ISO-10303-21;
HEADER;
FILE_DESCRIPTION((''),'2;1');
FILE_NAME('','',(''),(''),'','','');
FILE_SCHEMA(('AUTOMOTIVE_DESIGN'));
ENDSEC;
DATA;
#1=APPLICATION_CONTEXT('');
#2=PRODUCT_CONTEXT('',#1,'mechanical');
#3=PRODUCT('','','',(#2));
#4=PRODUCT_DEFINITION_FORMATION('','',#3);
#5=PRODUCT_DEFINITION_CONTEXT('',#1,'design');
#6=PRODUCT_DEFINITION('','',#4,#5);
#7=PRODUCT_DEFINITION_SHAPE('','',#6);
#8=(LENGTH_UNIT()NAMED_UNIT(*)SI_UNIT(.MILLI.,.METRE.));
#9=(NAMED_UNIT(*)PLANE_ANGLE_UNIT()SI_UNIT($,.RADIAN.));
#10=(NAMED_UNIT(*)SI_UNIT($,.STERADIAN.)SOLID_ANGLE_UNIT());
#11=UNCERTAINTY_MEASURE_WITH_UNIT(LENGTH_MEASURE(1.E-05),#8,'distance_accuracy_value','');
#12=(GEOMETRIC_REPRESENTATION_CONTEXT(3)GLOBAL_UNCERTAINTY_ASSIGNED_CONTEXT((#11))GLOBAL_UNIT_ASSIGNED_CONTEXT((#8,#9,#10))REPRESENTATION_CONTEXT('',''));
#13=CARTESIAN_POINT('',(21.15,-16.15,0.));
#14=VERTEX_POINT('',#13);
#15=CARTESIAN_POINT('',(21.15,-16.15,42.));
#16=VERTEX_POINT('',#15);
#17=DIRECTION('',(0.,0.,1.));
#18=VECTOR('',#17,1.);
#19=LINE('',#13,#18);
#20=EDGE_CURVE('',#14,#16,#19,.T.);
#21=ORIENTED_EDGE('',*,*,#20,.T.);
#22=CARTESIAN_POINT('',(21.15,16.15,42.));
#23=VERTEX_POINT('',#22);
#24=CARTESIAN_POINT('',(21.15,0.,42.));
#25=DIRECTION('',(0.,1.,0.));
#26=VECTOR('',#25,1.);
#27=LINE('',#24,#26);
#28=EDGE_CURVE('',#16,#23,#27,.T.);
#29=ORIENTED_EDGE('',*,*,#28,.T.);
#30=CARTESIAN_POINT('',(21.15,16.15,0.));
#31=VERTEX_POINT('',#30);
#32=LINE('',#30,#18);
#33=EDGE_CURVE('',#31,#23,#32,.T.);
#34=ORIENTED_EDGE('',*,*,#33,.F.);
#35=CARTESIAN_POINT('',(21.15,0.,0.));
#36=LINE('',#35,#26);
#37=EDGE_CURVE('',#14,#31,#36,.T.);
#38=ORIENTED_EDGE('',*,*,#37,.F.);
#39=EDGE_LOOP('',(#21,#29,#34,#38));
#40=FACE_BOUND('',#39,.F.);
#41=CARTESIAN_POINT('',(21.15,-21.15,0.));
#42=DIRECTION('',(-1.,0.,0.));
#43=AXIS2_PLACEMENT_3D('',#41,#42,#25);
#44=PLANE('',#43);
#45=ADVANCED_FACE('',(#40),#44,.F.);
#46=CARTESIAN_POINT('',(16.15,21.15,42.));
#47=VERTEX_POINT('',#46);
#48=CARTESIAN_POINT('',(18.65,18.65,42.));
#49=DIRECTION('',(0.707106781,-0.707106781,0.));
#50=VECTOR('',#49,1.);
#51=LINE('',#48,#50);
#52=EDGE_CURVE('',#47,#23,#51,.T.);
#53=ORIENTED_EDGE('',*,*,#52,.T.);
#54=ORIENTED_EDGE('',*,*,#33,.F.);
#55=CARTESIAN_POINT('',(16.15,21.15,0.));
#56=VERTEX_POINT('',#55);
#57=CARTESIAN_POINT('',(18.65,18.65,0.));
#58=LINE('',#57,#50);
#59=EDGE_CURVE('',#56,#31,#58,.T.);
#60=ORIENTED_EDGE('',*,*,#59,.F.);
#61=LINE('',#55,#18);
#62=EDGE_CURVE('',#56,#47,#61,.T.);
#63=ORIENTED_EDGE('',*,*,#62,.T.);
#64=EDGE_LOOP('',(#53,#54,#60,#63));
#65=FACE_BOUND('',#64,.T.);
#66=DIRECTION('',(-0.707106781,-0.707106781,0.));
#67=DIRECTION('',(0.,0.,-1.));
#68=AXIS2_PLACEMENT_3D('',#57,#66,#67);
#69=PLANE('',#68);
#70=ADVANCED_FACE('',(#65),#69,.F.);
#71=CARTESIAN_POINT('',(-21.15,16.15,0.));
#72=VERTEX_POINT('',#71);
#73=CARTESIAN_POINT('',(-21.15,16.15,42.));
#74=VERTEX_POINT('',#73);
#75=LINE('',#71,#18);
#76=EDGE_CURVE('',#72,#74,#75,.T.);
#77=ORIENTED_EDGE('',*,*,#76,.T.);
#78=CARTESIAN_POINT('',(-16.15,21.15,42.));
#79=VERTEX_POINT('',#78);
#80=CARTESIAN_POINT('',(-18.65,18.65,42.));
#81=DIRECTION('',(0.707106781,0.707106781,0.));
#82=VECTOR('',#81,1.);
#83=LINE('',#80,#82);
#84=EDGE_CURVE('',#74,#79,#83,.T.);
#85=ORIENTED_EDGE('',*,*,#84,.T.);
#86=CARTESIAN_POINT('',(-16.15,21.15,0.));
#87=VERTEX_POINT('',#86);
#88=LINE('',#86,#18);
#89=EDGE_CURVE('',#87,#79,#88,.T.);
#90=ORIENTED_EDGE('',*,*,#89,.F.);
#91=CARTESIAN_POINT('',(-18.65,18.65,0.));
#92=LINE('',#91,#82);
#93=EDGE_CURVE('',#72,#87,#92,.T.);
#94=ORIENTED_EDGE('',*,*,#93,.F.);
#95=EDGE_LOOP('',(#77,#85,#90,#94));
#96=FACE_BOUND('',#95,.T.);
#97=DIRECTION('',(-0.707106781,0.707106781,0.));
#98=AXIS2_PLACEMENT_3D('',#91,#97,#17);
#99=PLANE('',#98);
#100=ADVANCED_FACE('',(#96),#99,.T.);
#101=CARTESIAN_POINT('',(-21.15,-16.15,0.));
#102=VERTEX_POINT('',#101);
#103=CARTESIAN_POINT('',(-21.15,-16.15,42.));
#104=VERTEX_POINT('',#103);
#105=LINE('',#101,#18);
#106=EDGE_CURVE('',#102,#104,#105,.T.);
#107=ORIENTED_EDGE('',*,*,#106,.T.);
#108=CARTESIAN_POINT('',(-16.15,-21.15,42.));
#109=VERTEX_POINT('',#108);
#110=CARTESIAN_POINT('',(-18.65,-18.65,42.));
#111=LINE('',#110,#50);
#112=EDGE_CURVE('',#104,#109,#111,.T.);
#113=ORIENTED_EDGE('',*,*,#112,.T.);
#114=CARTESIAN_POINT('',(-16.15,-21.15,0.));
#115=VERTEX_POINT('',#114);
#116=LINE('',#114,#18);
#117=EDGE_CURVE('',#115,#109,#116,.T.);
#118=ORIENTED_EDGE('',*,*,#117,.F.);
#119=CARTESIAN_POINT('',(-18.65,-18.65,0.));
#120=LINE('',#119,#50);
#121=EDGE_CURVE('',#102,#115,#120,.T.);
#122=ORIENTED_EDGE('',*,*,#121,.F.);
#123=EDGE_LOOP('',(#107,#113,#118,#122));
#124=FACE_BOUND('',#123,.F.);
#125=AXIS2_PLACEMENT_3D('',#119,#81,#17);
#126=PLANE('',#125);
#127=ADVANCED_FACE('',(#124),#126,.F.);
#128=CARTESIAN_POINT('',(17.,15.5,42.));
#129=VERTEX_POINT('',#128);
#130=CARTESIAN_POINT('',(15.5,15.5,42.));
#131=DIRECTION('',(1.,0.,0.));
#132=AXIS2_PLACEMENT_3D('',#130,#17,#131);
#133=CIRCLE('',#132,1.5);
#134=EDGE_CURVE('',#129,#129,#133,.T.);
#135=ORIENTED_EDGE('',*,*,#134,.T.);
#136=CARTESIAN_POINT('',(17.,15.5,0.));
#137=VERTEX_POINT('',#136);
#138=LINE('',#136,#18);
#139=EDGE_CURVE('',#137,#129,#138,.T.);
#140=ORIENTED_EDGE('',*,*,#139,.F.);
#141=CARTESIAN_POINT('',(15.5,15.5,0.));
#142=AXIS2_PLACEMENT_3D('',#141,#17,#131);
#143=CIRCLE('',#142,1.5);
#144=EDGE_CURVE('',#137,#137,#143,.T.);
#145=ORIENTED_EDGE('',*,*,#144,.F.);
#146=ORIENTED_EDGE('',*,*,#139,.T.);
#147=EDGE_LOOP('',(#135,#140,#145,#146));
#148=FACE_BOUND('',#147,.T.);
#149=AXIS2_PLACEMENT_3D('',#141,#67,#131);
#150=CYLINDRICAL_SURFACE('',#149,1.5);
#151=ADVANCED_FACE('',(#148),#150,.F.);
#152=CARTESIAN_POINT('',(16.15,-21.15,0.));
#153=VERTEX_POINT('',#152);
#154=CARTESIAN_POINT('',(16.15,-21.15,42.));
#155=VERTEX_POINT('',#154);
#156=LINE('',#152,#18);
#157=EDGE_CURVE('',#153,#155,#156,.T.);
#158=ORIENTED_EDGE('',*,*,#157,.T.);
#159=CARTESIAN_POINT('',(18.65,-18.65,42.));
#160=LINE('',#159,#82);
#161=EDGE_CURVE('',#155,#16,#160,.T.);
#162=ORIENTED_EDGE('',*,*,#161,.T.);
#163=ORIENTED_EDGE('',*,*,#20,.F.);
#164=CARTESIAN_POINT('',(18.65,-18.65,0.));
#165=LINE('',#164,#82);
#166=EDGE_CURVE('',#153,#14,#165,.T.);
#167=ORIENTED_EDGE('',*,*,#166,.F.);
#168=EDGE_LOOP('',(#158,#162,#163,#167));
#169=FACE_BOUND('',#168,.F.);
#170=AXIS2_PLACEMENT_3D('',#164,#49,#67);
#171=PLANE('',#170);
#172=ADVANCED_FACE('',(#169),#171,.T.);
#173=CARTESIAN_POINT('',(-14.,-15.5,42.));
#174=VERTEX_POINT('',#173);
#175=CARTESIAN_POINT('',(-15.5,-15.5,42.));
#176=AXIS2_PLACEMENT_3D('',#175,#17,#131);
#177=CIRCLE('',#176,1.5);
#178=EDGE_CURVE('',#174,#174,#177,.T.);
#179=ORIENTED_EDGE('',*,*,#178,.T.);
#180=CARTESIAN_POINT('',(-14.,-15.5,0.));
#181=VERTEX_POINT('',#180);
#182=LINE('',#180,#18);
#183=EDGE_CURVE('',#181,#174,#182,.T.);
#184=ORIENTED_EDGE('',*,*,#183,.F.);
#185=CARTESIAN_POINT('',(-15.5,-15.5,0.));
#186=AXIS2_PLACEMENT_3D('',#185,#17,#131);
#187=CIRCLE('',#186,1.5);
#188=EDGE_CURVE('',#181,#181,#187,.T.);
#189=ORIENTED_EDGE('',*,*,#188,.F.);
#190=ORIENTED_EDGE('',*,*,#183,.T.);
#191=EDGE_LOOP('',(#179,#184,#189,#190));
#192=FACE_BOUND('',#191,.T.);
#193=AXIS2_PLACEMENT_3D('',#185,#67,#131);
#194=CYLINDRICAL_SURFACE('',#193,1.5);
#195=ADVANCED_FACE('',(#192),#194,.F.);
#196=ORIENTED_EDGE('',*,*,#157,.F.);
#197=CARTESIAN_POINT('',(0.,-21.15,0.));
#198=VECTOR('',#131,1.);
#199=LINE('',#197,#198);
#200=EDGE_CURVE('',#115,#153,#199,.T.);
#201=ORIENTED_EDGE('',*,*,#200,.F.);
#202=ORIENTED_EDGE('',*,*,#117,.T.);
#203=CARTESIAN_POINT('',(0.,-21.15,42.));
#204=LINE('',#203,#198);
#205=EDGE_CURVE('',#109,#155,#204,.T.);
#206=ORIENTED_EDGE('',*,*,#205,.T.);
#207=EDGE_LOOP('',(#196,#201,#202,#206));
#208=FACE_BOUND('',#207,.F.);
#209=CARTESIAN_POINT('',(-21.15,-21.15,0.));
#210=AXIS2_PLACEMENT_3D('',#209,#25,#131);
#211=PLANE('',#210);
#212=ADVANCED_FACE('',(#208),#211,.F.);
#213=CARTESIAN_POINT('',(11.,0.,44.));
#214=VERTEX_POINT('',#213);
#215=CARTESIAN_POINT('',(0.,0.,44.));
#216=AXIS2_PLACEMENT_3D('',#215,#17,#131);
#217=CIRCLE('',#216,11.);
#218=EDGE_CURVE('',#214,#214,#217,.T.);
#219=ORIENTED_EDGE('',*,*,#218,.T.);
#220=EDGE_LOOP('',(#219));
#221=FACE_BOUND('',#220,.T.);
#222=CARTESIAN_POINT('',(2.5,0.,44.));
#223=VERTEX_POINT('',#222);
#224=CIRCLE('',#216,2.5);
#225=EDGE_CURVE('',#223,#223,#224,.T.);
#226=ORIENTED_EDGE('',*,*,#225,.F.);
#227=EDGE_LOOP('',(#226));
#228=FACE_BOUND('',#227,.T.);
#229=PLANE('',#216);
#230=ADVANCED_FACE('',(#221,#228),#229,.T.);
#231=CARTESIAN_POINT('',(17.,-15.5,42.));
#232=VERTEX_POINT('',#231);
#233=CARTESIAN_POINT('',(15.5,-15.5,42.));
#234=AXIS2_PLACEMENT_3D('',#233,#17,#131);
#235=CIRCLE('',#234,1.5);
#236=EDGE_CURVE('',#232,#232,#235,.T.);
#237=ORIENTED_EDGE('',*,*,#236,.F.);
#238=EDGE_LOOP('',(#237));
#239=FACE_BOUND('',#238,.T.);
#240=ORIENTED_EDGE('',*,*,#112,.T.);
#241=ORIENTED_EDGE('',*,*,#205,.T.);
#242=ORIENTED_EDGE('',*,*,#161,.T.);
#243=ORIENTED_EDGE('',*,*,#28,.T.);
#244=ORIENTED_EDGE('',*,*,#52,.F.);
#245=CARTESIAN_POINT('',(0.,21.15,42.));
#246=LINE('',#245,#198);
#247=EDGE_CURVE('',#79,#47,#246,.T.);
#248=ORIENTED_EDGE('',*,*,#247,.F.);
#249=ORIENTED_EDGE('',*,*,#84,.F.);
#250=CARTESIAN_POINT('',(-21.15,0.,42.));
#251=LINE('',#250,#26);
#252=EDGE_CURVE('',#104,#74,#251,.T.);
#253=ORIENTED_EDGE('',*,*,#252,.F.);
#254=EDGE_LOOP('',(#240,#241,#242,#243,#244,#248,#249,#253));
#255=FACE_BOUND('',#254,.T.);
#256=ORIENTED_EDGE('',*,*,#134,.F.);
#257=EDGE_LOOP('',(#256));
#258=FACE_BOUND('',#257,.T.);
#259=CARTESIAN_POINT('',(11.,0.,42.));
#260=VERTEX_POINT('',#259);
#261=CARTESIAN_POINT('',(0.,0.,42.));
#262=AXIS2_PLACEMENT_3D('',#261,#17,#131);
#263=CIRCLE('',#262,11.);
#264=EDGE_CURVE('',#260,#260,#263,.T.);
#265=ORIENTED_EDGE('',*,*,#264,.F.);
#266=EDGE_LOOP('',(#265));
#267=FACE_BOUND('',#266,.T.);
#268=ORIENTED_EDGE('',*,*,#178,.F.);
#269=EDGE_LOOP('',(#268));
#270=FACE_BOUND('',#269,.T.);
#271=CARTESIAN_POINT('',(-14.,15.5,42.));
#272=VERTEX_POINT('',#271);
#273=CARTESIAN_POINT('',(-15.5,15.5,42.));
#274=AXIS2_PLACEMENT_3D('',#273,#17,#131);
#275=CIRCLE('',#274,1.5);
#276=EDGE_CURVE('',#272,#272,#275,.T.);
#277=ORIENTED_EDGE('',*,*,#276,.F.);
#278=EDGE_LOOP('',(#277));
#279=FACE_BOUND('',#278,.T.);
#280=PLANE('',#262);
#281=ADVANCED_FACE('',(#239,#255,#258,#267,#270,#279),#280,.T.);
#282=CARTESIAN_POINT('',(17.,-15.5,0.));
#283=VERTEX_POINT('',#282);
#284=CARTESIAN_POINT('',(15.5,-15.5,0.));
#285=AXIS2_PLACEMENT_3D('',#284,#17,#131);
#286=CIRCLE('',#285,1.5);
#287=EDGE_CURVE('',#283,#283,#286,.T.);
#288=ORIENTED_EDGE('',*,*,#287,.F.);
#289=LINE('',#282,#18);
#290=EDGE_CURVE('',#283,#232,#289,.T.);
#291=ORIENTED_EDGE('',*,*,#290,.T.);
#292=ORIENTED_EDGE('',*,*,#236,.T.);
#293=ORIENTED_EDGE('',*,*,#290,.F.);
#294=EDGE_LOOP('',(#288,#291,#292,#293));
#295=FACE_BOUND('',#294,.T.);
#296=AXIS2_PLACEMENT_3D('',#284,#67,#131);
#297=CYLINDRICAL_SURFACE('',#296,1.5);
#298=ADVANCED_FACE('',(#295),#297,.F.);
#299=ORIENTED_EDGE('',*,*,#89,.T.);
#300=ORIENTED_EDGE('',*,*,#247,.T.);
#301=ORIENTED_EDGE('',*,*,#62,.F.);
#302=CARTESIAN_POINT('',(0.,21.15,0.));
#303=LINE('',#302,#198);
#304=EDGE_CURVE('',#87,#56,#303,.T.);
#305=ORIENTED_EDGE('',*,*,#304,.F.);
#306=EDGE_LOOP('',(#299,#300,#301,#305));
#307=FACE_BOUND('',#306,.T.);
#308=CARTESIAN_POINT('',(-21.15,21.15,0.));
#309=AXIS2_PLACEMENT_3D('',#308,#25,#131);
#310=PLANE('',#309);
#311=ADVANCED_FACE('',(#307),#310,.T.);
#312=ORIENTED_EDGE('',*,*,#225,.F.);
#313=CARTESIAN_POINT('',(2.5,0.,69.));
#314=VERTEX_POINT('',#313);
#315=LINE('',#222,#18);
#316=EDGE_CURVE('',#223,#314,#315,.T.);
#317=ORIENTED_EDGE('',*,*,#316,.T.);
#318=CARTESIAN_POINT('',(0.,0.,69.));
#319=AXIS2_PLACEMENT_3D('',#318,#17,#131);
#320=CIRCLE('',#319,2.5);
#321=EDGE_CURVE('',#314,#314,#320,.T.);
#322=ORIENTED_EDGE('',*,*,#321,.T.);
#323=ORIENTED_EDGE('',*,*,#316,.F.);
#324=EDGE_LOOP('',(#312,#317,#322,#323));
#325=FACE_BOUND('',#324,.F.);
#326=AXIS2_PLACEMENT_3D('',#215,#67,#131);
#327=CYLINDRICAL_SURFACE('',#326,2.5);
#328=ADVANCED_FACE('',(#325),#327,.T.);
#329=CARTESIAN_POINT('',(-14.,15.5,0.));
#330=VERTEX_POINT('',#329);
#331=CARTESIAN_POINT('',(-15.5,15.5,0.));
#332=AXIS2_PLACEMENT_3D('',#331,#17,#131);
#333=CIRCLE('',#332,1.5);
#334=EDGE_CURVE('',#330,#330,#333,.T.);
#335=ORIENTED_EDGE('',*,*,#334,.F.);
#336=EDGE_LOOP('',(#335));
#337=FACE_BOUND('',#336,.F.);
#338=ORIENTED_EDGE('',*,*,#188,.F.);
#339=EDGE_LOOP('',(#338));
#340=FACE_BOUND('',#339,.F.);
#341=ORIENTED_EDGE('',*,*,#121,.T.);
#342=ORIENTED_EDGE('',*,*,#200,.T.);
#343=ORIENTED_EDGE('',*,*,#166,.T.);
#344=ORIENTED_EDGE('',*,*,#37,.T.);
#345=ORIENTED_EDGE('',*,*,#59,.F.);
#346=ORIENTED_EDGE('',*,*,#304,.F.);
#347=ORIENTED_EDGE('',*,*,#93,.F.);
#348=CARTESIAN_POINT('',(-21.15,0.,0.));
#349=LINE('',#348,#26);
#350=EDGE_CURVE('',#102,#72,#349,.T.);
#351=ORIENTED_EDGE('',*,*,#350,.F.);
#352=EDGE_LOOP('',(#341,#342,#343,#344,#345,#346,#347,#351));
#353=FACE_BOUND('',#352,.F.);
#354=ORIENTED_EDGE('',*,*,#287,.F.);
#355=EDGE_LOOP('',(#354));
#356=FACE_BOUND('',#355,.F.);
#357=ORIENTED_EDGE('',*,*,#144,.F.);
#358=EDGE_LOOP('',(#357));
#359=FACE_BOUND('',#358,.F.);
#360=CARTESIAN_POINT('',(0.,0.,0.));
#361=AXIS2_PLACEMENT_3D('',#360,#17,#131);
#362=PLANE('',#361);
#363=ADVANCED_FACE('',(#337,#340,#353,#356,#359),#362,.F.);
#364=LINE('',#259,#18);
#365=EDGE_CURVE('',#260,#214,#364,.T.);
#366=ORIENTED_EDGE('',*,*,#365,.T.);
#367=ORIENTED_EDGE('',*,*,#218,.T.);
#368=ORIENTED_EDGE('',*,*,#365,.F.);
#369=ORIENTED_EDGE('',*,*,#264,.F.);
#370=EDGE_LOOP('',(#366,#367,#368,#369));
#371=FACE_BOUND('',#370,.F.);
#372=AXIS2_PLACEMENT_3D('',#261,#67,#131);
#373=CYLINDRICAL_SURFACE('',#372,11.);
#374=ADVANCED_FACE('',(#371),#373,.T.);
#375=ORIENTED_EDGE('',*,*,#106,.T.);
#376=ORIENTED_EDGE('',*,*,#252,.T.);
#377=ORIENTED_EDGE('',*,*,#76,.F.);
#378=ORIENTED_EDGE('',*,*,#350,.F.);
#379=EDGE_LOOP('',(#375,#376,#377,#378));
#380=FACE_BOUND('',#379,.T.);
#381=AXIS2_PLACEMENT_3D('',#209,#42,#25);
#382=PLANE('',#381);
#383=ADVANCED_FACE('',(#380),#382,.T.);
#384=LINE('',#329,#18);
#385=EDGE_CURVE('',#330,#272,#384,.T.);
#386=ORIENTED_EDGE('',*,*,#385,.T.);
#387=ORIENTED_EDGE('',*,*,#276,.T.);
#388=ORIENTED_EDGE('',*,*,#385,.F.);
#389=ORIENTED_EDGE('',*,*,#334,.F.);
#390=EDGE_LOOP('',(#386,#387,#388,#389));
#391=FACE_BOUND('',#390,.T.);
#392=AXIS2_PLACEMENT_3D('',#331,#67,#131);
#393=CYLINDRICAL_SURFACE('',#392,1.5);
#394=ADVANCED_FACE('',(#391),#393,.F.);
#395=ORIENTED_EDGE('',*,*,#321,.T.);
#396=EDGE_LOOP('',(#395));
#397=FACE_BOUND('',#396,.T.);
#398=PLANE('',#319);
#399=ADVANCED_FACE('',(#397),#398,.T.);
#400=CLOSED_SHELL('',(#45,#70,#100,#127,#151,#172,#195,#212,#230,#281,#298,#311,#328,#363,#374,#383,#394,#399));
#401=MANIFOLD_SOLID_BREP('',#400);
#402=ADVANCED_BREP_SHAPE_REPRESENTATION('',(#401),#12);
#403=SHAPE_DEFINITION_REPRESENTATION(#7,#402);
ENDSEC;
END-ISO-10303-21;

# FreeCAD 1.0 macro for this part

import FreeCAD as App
import Part
import Sketcher


def edges_at(feature, points):
    """Names of the edges that pass closest to the given points."""
    edges = feature.Shape.Edges
    near = lambda p: min(range(len(edges)), key=lambda i: edges[i].distToShape(Part.Vertex(*p))[0])
    return sorted({f"Edge{near(p) + 1}" for p in points})


def add_polygon(sketch, points):
    """Adds a closed chain of lines whose ends are joined by coincident constraints."""
    first, n = sketch.GeometryCount, len(points)
    for a, b in zip(points, points[1:] + points[:1]):
        sketch.addGeometry(Part.LineSegment(App.Vector(*a, 0), App.Vector(*b, 0)), False)
    for i in range(n):
        sketch.addConstraint(Sketcher.Constraint("Coincident", first + i, 2, first + (i + 1) % n, 1))

doc = App.newDocument("Part")
body = doc.addObject("PartDesign::Body", "Body")

sketch1 = body.newObject("Sketcher::SketchObject", "Sketch")
sketch1.AttachmentSupport = (doc.getObject("XY_Plane"), [""])
sketch1.MapMode = "FlatFace"
add_polygon(sketch1, [(-21.1, 21.1), (-21.1, -21.1), (21.1, -21.1), (21.1, 21.1)])
sketch1.addGeometry(Part.Circle(App.Vector(-15.5, -15.5, 0), App.Vector(0, 0, 1), 1.5), False)
sketch1.addGeometry(Part.Circle(App.Vector(15.5, -15.5, 0), App.Vector(0, 0, 1), 1.5), False)
sketch1.addGeometry(Part.Circle(App.Vector(-15.5, 15.5, 0), App.Vector(0, 0, 1), 1.5), False)
sketch1.addGeometry(Part.Circle(App.Vector(15.5, 15.5, 0), App.Vector(0, 0, 1), 1.5), False)
sketch1.addConstraint([
    Sketcher.Constraint("Vertical", 0),
    Sketcher.Constraint("Horizontal", 1),
    Sketcher.Constraint("Vertical", 2),
    Sketcher.Constraint("Horizontal", 3),
    Sketcher.Constraint("Equal", 4, 5),
    Sketcher.Constraint("Equal", 5, 6),
    Sketcher.Constraint("Equal", 6, 7),
    Sketcher.Constraint("Symmetric", 5, 3, 6, 3, -1, 1),
    Sketcher.Constraint("Symmetric", 4, 3, 7, 3, -1, 1),
    Sketcher.Constraint("Symmetric", 0, 2, 2, 2, -1, 1),
    Sketcher.Constraint("Symmetric", 4, 3, 5, 3, -2),
    Sketcher.Constraint("Equal", 3, 0),
    Sketcher.Constraint("Diameter", 4, 3.0),
    Sketcher.Constraint("DistanceX", 1, 1, 1, 2, 42.3),
    Sketcher.Constraint("DistanceX", 4, 3, 5, 3, 31.0),
    Sketcher.Constraint("DistanceY", 4, 3, 6, 3, 31.0),
])
pad1 = body.newObject("PartDesign::Pad", "Pad")
pad1.Profile = sketch1
pad1.Length = 42

sketch2 = body.newObject("Sketcher::SketchObject", "Sketch001")
sketch2.AttachmentSupport = (doc.getObject("XY_Plane"), [""])
sketch2.MapMode = "FlatFace"
sketch2.AttachmentOffset = App.Placement(App.Vector(0, 0, 42), App.Rotation())
sketch2.addGeometry(Part.Circle(App.Vector(0, 0, 0), App.Vector(0, 0, 1), 11), False)
sketch2.addConstraint([
    Sketcher.Constraint("Coincident", 0, 3, -1, 1),
    Sketcher.Constraint("Diameter", 0, 22.0),
])
pad2 = body.newObject("PartDesign::Pad", "Pad001")
pad2.Profile = sketch2
pad2.Length = 2

sketch3 = body.newObject("Sketcher::SketchObject", "Sketch002")
sketch3.AttachmentSupport = (doc.getObject("XY_Plane"), [""])
sketch3.MapMode = "FlatFace"
sketch3.AttachmentOffset = App.Placement(App.Vector(0, 0, 44), App.Rotation())
sketch3.addGeometry(Part.Circle(App.Vector(0, 0, 0), App.Vector(0, 0, 1), 2.5), False)
sketch3.addConstraint([
    Sketcher.Constraint("Coincident", 0, 3, -1, 1),
    Sketcher.Constraint("Diameter", 0, 5.0),
])
pad3 = body.newObject("PartDesign::Pad", "Pad002")
pad3.Profile = sketch3
pad3.Length = 25
doc.recompute()

chamfer = body.newObject("PartDesign::Chamfer", "Chamfer")
chamfer.Base = (pad3, edges_at(pad3, [
    (-21.15, -21.15, 21),
    (21.15, -21.15, 21),
    (21.15, 21.15, 21),
    (-21.15, 21.15, 21),
]))
chamfer.Size = 5

doc.recompute()
